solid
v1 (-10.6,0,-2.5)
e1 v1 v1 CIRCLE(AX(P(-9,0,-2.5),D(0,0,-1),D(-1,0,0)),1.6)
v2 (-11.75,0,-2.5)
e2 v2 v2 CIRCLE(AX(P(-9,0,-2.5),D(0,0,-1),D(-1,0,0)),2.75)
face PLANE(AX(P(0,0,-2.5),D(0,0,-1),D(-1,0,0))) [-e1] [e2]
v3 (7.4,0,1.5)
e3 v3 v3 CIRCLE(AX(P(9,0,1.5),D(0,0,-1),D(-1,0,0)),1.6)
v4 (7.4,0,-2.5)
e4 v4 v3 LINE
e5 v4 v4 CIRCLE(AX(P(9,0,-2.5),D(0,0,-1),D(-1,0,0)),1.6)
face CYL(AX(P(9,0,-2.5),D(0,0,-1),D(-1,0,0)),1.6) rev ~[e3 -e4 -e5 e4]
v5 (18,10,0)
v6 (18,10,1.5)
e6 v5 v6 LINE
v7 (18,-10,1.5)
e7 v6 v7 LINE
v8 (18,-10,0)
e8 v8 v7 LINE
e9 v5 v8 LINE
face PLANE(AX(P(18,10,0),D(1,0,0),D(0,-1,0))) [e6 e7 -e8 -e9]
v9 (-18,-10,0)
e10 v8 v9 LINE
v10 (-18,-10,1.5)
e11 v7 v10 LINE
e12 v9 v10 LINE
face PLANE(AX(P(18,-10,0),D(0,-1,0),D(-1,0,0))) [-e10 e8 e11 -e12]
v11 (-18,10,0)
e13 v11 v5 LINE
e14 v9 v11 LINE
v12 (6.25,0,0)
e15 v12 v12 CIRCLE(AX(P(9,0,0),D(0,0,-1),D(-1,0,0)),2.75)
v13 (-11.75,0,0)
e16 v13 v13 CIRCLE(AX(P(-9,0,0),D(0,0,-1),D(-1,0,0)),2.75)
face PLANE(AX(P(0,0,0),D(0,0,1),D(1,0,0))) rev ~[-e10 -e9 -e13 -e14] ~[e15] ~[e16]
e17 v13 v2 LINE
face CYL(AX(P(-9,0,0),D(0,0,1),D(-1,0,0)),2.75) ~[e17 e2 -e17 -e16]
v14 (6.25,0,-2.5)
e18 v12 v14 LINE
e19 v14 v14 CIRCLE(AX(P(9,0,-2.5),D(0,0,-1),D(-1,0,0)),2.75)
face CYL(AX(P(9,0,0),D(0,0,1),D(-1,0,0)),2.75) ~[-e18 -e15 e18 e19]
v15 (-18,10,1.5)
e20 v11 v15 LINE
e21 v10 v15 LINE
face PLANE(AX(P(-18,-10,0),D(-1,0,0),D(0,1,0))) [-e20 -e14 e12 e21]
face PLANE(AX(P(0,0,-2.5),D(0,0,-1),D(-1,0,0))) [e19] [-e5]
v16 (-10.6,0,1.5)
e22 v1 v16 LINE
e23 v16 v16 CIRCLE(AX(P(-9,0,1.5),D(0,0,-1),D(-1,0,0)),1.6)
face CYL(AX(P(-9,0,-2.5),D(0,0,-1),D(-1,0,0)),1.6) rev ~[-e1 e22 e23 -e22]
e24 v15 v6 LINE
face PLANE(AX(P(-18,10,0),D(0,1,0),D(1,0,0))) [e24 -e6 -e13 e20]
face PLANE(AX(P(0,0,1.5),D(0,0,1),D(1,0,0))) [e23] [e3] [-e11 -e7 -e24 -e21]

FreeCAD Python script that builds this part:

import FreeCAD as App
import Part
import Sketcher

V = App.Vector
Q = App.Units.Quantity

doc = App.newDocument("Part")
params = doc.addObject("Spreadsheet::Sheet", "Params")
for row, (alias, value) in enumerate([
    ("sketch1_width", "36 mm"),
    ("sketch1_height", "20 mm"),
    ("pad1_length", "1.5 mm"),
    ("sketch2_diameter", "5.5 mm"),
    ("pad2_length", "2.5 mm"),
    ("sketch3_diameter", "3.2 mm"),
], start=1):
    params.set(f"A{row}", alias)
    params.set(f"B{row}", "=" + value)
    params.setAlias(f"B{row}", alias)

body = doc.addObject("PartDesign::Body", "Body")

# Sketch on XY plane
sketch1 = doc.addObject("Sketcher::SketchObject", "Sketch")
body.addObject(sketch1)
sketch1.AttachmentSupport = (doc.XY_Plane, [""])
sketch1.MapMode = "FlatFace"
sketch1.addGeometry(Part.LineSegment(V(18, 10, 0), V(-18, 10, 0)), False)
sketch1.addGeometry(Part.LineSegment(V(-18, 10, 0), V(-18, -10, 0)), False)
sketch1.addGeometry(Part.LineSegment(V(-18, -10, 0), V(18, -10, 0)), False)
sketch1.addGeometry(Part.LineSegment(V(18, -10, 0), V(18, 10, 0)), False)
sketch1.addConstraint(Sketcher.Constraint("Coincident", 0, 2, 1, 1))
sketch1.addConstraint(Sketcher.Constraint("Coincident", 1, 2, 2, 1))
sketch1.addConstraint(Sketcher.Constraint("Coincident", 2, 2, 3, 1))
sketch1.addConstraint(Sketcher.Constraint("Coincident", 3, 2, 0, 1))
sketch1.addConstraint(Sketcher.Constraint("Horizontal", 0))
sketch1.addConstraint(Sketcher.Constraint("Vertical", 1))
sketch1.addConstraint(Sketcher.Constraint("Horizontal", 2))
sketch1.addConstraint(Sketcher.Constraint("Vertical", 3))
sketch1.addConstraint(Sketcher.Constraint("Symmetric", 0, 2, 2, 2, -1, 1))
sketch1.addConstraint(Sketcher.Constraint("DistanceX", 0, 2, 0, 1, Q("36 mm")))
sketch1.addConstraint(Sketcher.Constraint("DistanceY", 1, 2, 1, 1, Q("20 mm")))
sketch1.setExpression("Constraints[9]", "Params.sketch1_width")
sketch1.setExpression("Constraints[10]", "Params.sketch1_height")
pad1 = doc.addObject("PartDesign::Pad", "Pad")
body.addObject(pad1)
pad1.Profile = sketch1
pad1.setExpression("Length", "Params.pad1_length")

# Sketch on XY plane
sketch2 = doc.addObject("Sketcher::SketchObject", "Sketch001")
body.addObject(sketch2)
sketch2.AttachmentSupport = (doc.XY_Plane, [""])
sketch2.MapMode = "FlatFace"
sketch2.addGeometry(Part.Circle(V(9, 0, 0), V(0, 0, 1), 2.8), False)
sketch2.addGeometry(Part.Circle(V(-9, 0, 0), V(0, 0, 1), 2.8), False)
sketch2.addConstraint(Sketcher.Constraint("Equal", 0, 1))
sketch2.addConstraint(Sketcher.Constraint("Symmetric", 0, 3, 1, 3, -1, 1))
sketch2.addConstraint(Sketcher.Constraint("PointOnObject", 0, 3, -1))
sketch2.addConstraint(Sketcher.Constraint("Diameter", 0, Q("5.5 mm")))
sketch2.addConstraint(Sketcher.Constraint("DistanceX", -1, 1, 0, 3, Q("9 mm")))
sketch2.setExpression("Constraints[3]", "Params.sketch2_diameter")
pad2 = doc.addObject("PartDesign::Pad", "Pad001")
body.addObject(pad2)
pad2.Profile = sketch2
pad2.setExpression("Length", "Params.pad2_length")
pad2.Reversed = True

# Sketch on XY plane
sketch3 = doc.addObject("Sketcher::SketchObject", "Sketch002")
body.addObject(sketch3)
sketch3.AttachmentSupport = (doc.XY_Plane, [""])
sketch3.MapMode = "FlatFace"
sketch3.AttachmentOffset = App.Placement(V(0, 0, -2.5), App.Rotation())
sketch3.addGeometry(Part.Circle(V(-9, 0, 0), V(0, 0, 1), 1.6), False)
sketch3.addGeometry(Part.Circle(V(9, 0, 0), V(0, 0, 1), 1.6), False)
sketch3.addConstraint(Sketcher.Constraint("Equal", 0, 1))
sketch3.addConstraint(Sketcher.Constraint("Symmetric", 0, 3, 1, 3, -1, 1))
sketch3.addConstraint(Sketcher.Constraint("PointOnObject", 0, 3, -1))
sketch3.addConstraint(Sketcher.Constraint("Diameter", 0, Q("3.2 mm")))
sketch3.addConstraint(Sketcher.Constraint("DistanceX", 0, 3, -1, 1, Q("9 mm")))
sketch3.setExpression("Constraints[3]", "Params.sketch3_diameter")
pocket1 = doc.addObject("PartDesign::Pocket", "Pocket")
body.addObject(pocket1)
pocket1.Profile = sketch3
pocket1.Type = "ThroughAll"
pocket1.Reversed = True

doc.recompute()
